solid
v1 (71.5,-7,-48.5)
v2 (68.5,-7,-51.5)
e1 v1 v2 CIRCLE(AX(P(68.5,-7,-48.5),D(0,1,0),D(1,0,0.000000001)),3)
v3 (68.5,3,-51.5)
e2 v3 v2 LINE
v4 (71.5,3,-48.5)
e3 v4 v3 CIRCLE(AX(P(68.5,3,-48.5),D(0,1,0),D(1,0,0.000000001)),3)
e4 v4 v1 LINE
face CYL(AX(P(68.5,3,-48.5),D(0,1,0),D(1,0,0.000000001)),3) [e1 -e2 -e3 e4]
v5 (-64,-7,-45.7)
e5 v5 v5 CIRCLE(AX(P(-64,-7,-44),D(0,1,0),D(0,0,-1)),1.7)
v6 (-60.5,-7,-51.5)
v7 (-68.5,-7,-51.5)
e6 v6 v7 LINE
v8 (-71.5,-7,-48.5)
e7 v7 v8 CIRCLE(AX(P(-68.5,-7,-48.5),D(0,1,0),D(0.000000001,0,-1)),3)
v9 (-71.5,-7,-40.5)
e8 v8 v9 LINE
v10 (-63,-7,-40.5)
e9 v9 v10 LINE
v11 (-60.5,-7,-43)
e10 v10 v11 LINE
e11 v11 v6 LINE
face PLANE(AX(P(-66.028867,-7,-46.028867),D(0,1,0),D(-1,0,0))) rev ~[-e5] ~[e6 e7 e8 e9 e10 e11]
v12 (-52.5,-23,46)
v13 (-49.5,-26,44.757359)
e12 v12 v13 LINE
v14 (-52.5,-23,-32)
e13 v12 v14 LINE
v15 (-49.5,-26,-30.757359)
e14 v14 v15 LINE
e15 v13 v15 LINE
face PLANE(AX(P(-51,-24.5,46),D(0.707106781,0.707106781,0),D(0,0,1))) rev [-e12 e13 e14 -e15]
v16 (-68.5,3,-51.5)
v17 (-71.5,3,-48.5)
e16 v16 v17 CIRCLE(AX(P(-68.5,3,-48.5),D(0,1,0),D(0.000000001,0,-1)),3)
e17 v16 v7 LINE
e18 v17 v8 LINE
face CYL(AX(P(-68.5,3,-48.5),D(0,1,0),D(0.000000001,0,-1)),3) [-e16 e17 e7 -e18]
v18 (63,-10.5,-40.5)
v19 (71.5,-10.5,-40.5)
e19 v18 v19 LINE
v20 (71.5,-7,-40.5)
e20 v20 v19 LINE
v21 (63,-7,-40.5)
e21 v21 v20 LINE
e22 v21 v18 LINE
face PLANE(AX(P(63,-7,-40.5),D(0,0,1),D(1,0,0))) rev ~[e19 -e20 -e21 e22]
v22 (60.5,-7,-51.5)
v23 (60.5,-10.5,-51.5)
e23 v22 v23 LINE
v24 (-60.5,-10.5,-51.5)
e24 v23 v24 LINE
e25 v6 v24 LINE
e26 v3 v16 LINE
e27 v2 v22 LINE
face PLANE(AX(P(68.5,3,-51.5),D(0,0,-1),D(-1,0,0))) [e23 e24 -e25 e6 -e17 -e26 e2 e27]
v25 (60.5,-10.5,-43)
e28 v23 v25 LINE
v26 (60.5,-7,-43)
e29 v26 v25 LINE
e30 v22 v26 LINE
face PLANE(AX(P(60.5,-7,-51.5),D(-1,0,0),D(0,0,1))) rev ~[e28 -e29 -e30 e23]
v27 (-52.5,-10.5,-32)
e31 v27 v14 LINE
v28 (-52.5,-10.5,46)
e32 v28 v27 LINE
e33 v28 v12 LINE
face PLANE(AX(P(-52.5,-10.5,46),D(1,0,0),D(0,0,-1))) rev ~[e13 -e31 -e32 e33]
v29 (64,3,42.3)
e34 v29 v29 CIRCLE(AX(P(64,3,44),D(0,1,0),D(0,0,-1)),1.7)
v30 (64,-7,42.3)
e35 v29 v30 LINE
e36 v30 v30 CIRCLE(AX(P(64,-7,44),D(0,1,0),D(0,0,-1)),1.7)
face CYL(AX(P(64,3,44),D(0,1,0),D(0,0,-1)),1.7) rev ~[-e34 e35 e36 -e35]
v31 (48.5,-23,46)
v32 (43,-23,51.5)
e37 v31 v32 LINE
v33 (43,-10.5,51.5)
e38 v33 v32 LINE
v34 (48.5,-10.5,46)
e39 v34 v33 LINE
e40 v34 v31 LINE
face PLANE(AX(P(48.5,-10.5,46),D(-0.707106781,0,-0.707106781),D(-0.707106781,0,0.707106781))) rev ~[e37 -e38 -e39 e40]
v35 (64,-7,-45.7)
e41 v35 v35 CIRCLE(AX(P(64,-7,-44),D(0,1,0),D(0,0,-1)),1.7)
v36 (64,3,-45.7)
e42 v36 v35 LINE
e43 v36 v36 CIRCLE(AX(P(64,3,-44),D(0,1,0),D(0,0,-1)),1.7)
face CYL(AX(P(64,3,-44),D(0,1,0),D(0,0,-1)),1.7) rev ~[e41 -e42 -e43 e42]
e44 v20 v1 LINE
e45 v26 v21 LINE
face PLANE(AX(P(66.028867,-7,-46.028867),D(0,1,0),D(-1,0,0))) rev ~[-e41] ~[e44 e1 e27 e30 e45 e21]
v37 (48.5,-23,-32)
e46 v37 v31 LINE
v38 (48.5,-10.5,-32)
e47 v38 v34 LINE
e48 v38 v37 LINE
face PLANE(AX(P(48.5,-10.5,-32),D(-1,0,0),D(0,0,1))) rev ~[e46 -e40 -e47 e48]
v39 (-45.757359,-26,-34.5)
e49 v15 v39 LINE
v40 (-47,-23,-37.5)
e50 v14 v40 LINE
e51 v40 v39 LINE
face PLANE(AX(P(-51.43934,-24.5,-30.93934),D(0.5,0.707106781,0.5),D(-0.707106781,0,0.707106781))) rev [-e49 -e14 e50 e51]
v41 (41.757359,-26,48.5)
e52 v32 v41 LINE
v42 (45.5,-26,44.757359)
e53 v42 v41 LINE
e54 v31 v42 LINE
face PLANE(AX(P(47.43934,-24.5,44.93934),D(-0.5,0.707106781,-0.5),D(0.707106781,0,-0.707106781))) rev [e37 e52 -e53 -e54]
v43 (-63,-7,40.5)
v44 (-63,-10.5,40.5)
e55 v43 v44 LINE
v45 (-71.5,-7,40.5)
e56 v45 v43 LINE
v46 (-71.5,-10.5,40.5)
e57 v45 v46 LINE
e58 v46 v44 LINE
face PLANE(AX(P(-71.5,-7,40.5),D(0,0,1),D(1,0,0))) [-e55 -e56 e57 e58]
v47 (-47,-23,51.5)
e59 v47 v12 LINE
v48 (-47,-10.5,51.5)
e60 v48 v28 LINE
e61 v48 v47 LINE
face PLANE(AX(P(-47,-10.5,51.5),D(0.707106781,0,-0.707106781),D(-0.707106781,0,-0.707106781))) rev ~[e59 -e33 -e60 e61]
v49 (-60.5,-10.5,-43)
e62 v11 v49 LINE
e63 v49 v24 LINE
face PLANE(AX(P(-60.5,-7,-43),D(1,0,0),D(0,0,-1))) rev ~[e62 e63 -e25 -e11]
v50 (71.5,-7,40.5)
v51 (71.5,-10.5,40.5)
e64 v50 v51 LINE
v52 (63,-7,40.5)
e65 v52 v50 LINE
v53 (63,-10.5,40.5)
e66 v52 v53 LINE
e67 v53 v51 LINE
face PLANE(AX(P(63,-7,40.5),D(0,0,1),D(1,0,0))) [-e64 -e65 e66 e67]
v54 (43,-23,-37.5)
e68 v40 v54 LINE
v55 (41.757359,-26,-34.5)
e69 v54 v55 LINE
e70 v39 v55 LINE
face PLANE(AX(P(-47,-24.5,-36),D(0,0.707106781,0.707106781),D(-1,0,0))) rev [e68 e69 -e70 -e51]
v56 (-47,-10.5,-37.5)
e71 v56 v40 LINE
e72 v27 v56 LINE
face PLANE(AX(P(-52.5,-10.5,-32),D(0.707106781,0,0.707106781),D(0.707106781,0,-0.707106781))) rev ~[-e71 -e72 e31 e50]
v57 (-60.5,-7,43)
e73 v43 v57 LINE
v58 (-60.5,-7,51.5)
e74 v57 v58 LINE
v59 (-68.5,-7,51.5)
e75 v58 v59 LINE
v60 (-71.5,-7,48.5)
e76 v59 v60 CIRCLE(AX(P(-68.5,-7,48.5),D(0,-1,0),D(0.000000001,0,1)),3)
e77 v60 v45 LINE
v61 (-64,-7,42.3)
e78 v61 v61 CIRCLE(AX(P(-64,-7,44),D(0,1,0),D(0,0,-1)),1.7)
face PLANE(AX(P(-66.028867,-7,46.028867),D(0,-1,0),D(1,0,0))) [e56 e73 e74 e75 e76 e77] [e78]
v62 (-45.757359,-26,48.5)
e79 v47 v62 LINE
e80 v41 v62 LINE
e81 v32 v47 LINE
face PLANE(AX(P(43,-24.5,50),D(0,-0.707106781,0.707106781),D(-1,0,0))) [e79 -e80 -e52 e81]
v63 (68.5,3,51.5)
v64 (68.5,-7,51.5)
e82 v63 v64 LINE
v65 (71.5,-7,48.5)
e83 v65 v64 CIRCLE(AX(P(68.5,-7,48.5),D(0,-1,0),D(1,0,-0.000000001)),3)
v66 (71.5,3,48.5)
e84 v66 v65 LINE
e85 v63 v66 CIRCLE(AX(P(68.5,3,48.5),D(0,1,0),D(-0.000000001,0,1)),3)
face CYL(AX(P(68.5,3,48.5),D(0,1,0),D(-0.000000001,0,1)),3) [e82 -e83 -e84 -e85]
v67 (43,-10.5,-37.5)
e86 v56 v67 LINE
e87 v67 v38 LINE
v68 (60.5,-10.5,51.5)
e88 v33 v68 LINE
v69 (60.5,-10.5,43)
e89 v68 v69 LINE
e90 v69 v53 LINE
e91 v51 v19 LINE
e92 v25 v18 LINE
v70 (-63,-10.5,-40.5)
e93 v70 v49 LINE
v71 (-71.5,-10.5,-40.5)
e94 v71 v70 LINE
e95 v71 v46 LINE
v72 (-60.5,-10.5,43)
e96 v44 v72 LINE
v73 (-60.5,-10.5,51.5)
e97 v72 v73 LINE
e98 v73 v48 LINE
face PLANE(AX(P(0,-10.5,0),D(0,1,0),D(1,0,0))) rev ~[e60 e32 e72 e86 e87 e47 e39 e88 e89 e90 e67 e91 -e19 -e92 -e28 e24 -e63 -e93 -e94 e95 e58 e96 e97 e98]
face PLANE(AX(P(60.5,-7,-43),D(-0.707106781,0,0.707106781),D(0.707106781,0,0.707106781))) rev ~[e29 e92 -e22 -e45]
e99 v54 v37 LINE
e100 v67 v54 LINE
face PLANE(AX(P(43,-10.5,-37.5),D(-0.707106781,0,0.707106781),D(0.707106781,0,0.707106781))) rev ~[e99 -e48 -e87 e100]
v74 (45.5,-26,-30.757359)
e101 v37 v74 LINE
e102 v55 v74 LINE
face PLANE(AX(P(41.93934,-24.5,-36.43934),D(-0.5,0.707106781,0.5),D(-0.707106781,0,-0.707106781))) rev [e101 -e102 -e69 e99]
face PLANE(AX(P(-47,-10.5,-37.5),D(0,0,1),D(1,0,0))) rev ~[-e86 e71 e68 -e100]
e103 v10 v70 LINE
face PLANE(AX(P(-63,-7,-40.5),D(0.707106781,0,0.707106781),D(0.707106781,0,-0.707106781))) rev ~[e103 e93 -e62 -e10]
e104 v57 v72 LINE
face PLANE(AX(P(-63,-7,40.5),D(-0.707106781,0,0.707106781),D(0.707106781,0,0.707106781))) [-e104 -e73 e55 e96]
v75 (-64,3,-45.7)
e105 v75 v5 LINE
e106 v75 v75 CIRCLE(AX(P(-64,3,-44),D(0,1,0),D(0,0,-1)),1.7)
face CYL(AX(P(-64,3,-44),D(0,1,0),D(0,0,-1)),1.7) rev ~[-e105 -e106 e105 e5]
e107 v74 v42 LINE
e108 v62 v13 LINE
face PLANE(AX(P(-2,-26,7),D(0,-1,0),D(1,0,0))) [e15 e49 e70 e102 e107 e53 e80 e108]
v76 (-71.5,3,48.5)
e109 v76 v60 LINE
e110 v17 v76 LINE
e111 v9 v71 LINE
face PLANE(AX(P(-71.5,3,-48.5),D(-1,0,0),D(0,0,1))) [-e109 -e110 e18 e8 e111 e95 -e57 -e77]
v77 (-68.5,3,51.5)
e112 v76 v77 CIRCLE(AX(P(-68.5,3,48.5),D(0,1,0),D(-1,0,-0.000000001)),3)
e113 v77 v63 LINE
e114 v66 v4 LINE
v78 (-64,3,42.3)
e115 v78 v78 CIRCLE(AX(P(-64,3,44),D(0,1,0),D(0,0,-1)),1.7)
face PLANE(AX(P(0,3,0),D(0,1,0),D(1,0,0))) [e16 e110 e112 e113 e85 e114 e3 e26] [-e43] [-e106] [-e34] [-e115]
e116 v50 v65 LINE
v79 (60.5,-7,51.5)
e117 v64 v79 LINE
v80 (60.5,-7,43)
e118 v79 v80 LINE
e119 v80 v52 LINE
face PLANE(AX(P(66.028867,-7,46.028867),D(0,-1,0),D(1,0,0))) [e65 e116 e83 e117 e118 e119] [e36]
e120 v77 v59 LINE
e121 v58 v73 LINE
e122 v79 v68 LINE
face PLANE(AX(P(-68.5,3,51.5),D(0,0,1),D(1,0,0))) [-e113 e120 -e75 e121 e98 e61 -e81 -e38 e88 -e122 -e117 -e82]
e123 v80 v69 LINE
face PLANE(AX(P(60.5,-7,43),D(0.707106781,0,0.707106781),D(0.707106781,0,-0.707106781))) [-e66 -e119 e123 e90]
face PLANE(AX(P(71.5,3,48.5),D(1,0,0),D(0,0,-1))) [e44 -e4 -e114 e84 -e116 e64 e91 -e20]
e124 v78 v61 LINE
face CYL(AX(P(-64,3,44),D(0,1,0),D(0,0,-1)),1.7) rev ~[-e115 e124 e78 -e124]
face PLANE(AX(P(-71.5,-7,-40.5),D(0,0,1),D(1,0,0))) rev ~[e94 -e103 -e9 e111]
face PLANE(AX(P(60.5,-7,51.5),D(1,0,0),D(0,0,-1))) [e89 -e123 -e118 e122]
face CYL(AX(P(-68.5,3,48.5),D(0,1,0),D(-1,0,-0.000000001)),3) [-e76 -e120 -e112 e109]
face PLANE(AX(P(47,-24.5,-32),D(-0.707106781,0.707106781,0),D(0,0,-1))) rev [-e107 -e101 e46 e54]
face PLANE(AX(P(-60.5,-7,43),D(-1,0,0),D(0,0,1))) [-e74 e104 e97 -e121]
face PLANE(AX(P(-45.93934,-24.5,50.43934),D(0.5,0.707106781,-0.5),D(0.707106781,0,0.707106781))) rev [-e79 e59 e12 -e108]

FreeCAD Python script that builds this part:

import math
import FreeCAD as App
import Part
import Sketcher
from FreeCAD import Vector
Q = App.Units.Quantity


def edges_at(feature, points):
    """Names of the edges that pass closest to the given points."""
    edges = feature.Shape.Edges
    near = lambda p: min(range(len(edges)), key=lambda i: edges[i].distToShape(Part.Vertex(*p))[0])
    return sorted({f"Edge{near(p) + 1}" for p in points})


def add_polygon(sketch, points):
    """Adds a closed chain of lines whose ends are joined by coincident constraints."""
    first, n = sketch.GeometryCount, len(points)
    for a, b in zip(points, points[1:] + points[:1]):
        sketch.addGeometry(Part.LineSegment(App.Vector(*a, 0), App.Vector(*b, 0)), False)
    for i in range(n):
        sketch.addConstraint(Sketcher.Constraint("Coincident", first + i, 2, first + (i + 1) % n, 1))

doc = App.newDocument("Part")
body = doc.addObject("PartDesign::Body", "Body")

sketch1 = body.newObject("Sketcher::SketchObject", "Sketch")
sketch1.AttachmentSupport = (doc.getObject("XZ_Plane"), [""])
sketch1.MapMode = "FlatFace"
sketch1.AttachmentOffset = App.Placement(Vector(0, 0, -3), App.Rotation())
sketch1.addGeometry(Part.LineSegment(Vector(71.5, 48.5, 0), Vector(71.5, -48.5, 0)), False)
sketch1.addGeometry(Part.ArcOfCircle(Part.Circle(Vector(68.5, -48.5, 0), Vector(0, 0, 1), 3), math.radians(-90), math.radians(0)), False)
sketch1.addGeometry(Part.LineSegment(Vector(68.5, -51.5, 0), Vector(-68.5, -51.5, 0)), False)
sketch1.addGeometry(Part.ArcOfCircle(Part.Circle(Vector(-68.5, -48.5, 0), Vector(0, 0, 1), 3), math.radians(180), math.radians(270)), False)
sketch1.addGeometry(Part.LineSegment(Vector(-71.5, -48.5, 0), Vector(-71.5, 48.5, 0)), False)
sketch1.addGeometry(Part.ArcOfCircle(Part.Circle(Vector(-68.5, 48.5, 0), Vector(0, 0, 1), 3), math.radians(90), math.radians(180)), False)
sketch1.addGeometry(Part.LineSegment(Vector(-68.5, 51.5, 0), Vector(68.5, 51.5, 0)), False)
sketch1.addGeometry(Part.ArcOfCircle(Part.Circle(Vector(68.5, 48.5, 0), Vector(0, 0, 1), 3), math.radians(0), math.radians(90)), False)
sketch1.addGeometry(Part.Circle(Vector(-64, 44, 0), Vector(0, 0, 1), 1.7), False)
sketch1.addGeometry(Part.Circle(Vector(64, 44, 0), Vector(0, 0, 1), 1.7), False)
sketch1.addGeometry(Part.Circle(Vector(-64, -44, 0), Vector(0, 0, 1), 1.7), False)
sketch1.addGeometry(Part.Circle(Vector(64, -44, 0), Vector(0, 0, 1), 1.7), False)
sketch1.addConstraint(Sketcher.Constraint("Tangent", 0, 2, 1, 2))
sketch1.addConstraint(Sketcher.Constraint("Tangent", 1, 1, 2, 1))
sketch1.addConstraint(Sketcher.Constraint("Tangent", 2, 2, 3, 2))
sketch1.addConstraint(Sketcher.Constraint("Tangent", 3, 1, 4, 1))
sketch1.addConstraint(Sketcher.Constraint("Tangent", 4, 2, 5, 2))
sketch1.addConstraint(Sketcher.Constraint("Tangent", 5, 1, 6, 1))
sketch1.addConstraint(Sketcher.Constraint("Tangent", 6, 2, 7, 2))
sketch1.addConstraint(Sketcher.Constraint("Tangent", 7, 1, 0, 1))
sketch1.addConstraint(Sketcher.Constraint("Vertical", 0))
sketch1.addConstraint(Sketcher.Constraint("Horizontal", 2))
sketch1.addConstraint(Sketcher.Constraint("Vertical", 4))
sketch1.addConstraint(Sketcher.Constraint("Horizontal", 6))
sketch1.addConstraint(Sketcher.Constraint("Equal", 1, 3))
sketch1.addConstraint(Sketcher.Constraint("Equal", 3, 5))
sketch1.addConstraint(Sketcher.Constraint("Equal", 5, 7))
sketch1.addConstraint(Sketcher.Constraint("Equal", 8, 9))
sketch1.addConstraint(Sketcher.Constraint("Equal", 9, 10))
sketch1.addConstraint(Sketcher.Constraint("Equal", 10, 11))
sketch1.addConstraint(Sketcher.Constraint("Symmetric", 1, 3, 5, 3, -1, 1))
sketch1.addConstraint(Sketcher.Constraint("Symmetric", 9, 3, 10, 3, -1, 1))
sketch1.addConstraint(Sketcher.Constraint("Symmetric", 8, 3, 11, 3, -1, 1))
sketch1.addConstraint(Sketcher.Constraint("Symmetric", 8, 3, 9, 3, -2))
sketch1.addConstraint(Sketcher.Constraint("Radius", 1, Q("3 mm")))
sketch1.addConstraint(Sketcher.Constraint("Diameter", 8, Q("3.4 mm")))
sketch1.addConstraint(Sketcher.Constraint("DistanceX", 2, 2, 2, 1, Q("137 mm")))
sketch1.addConstraint(Sketcher.Constraint("DistanceY", 0, 2, 0, 1, Q("97 mm")))
sketch1.addConstraint(Sketcher.Constraint("DistanceX", 8, 3, -1, 1, Q("64 mm")))
sketch1.addConstraint(Sketcher.Constraint("DistanceY", -1, 1, 8, 3, Q("44 mm")))
pad1 = body.newObject("PartDesign::Pad", "Pad")
pad1.Profile = sketch1
pad1.Length = 13.5

sketch2 = body.newObject("Sketcher::SketchObject", "Sketch001")
sketch2.AttachmentSupport = (doc.getObject("XZ_Plane"), [""])
sketch2.MapMode = "FlatFace"
sketch2.AttachmentOffset = App.Placement(Vector(0, 0, 7), App.Rotation())
sketch2.addGeometry(Part.LineSegment(Vector(-63, -40.5, 0), Vector(-71.5, -40.5, 0)), False)
sketch2.addGeometry(Part.LineSegment(Vector(-71.5, -40.5, 0), Vector(-71.5, -48.5, 0)), False)
sketch2.addGeometry(Part.ArcOfCircle(Part.Circle(Vector(-68.5, -48.5, 0), Vector(0, 0, 1), 3), math.radians(180), math.radians(270)), False)
sketch2.addGeometry(Part.LineSegment(Vector(-68.5, -51.5, 0), Vector(-60.5, -51.5, 0)), False)
sketch2.addGeometry(Part.LineSegment(Vector(-60.5, -51.5, 0), Vector(-60.5, -43, 0)), False)
sketch2.addGeometry(Part.LineSegment(Vector(-60.5, -43, 0), Vector(-63, -40.5, 0)), False)
sketch2.addGeometry(Part.LineSegment(Vector(-71.5, 40.5, 0), Vector(-63, 40.5, 0)), False)
sketch2.addGeometry(Part.LineSegment(Vector(-63, 40.5, 0), Vector(-60.5, 43, 0)), False)
sketch2.addGeometry(Part.LineSegment(Vector(-60.5, 43, 0), Vector(-60.5, 51.5, 0)), False)
sketch2.addGeometry(Part.LineSegment(Vector(-60.5, 51.5, 0), Vector(-68.5, 51.5, 0)), False)
sketch2.addGeometry(Part.ArcOfCircle(Part.Circle(Vector(-68.5, 48.5, 0), Vector(0, 0, 1), 3), math.radians(90), math.radians(180)), False)
sketch2.addGeometry(Part.LineSegment(Vector(-71.5, 48.5, 0), Vector(-71.5, 40.5, 0)), False)
sketch2.addGeometry(Part.LineSegment(Vector(60.5, 51.5, 0), Vector(60.5, 43, 0)), False)
sketch2.addGeometry(Part.LineSegment(Vector(60.5, 43, 0), Vector(63, 40.5, 0)), False)
sketch2.addGeometry(Part.LineSegment(Vector(63, 40.5, 0), Vector(71.5, 40.5, 0)), False)
sketch2.addGeometry(Part.LineSegment(Vector(71.5, 40.5, 0), Vector(71.5, 48.5, 0)), False)
sketch2.addGeometry(Part.ArcOfCircle(Part.Circle(Vector(68.5, 48.5, 0), Vector(0, 0, 1), 3), math.radians(0), math.radians(90)), False)
sketch2.addGeometry(Part.LineSegment(Vector(68.5, 51.5, 0), Vector(60.5, 51.5, 0)), False)
sketch2.addGeometry(Part.LineSegment(Vector(60.5, -43, 0), Vector(60.5, -51.5, 0)), False)
sketch2.addGeometry(Part.LineSegment(Vector(60.5, -51.5, 0), Vector(68.5, -51.5, 0)), False)
sketch2.addGeometry(Part.ArcOfCircle(Part.Circle(Vector(68.5, -48.5, 0), Vector(0, 0, 1), 3), math.radians(-90), math.radians(0)), False)
sketch2.addGeometry(Part.LineSegment(Vector(71.5, -48.5, 0), Vector(71.5, -40.5, 0)), False)
sketch2.addGeometry(Part.LineSegment(Vector(71.5, -40.5, 0), Vector(63, -40.5, 0)), False)
sketch2.addGeometry(Part.LineSegment(Vector(63, -40.5, 0), Vector(60.5, -43, 0)), False)
sketch2.addConstraint(Sketcher.Constraint("Coincident", 0, 2, 1, 1))
sketch2.addConstraint(Sketcher.Constraint("Tangent", 1, 2, 2, 1))
sketch2.addConstraint(Sketcher.Constraint("Tangent", 2, 2, 3, 1))
sketch2.addConstraint(Sketcher.Constraint("Coincident", 3, 2, 4, 1))
sketch2.addConstraint(Sketcher.Constraint("Coincident", 4, 2, 5, 1))
sketch2.addConstraint(Sketcher.Constraint("Coincident", 5, 2, 0, 1))
sketch2.addConstraint(Sketcher.Constraint("Coincident", 6, 2, 7, 1))
sketch2.addConstraint(Sketcher.Constraint("Coincident", 7, 2, 8, 1))
sketch2.addConstraint(Sketcher.Constraint("Coincident", 8, 2, 9, 1))
sketch2.addConstraint(Sketcher.Constraint("Tangent", 9, 2, 10, 1))
sketch2.addConstraint(Sketcher.Constraint("Tangent", 10, 2, 11, 1))
sketch2.addConstraint(Sketcher.Constraint("Coincident", 11, 2, 6, 1))
sketch2.addConstraint(Sketcher.Constraint("Coincident", 12, 2, 13, 1))
sketch2.addConstraint(Sketcher.Constraint("Coincident", 13, 2, 14, 1))
sketch2.addConstraint(Sketcher.Constraint("Coincident", 14, 2, 15, 1))
sketch2.addConstraint(Sketcher.Constraint("Tangent", 15, 2, 16, 1))
sketch2.addConstraint(Sketcher.Constraint("Tangent", 16, 2, 17, 1))
sketch2.addConstraint(Sketcher.Constraint("Coincident", 17, 2, 12, 1))
sketch2.addConstraint(Sketcher.Constraint("Coincident", 18, 2, 19, 1))
sketch2.addConstraint(Sketcher.Constraint("Tangent", 19, 2, 20, 1))
sketch2.addConstraint(Sketcher.Constraint("Tangent", 20, 2, 21, 1))
sketch2.addConstraint(Sketcher.Constraint("Coincident", 21, 2, 22, 1))
sketch2.addConstraint(Sketcher.Constraint("Coincident", 22, 2, 23, 1))
sketch2.addConstraint(Sketcher.Constraint("Coincident", 23, 2, 18, 1))
sketch2.addConstraint(Sketcher.Constraint("Horizontal", 0))
sketch2.addConstraint(Sketcher.Constraint("Vertical", 1))
sketch2.addConstraint(Sketcher.Constraint("Horizontal", 3))
sketch2.addConstraint(Sketcher.Constraint("Vertical", 4))
sketch2.addConstraint(Sketcher.Constraint("Horizontal", 6))
sketch2.addConstraint(Sketcher.Constraint("Vertical", 8))
sketch2.addConstraint(Sketcher.Constraint("Horizontal", 9))
sketch2.addConstraint(Sketcher.Constraint("Vertical", 11))
sketch2.addConstraint(Sketcher.Constraint("Vertical", 12))
sketch2.addConstraint(Sketcher.Constraint("Horizontal", 14))
sketch2.addConstraint(Sketcher.Constraint("Vertical", 15))
sketch2.addConstraint(Sketcher.Constraint("Horizontal", 17))
sketch2.addConstraint(Sketcher.Constraint("Vertical", 18))
sketch2.addConstraint(Sketcher.Constraint("Horizontal", 19))
sketch2.addConstraint(Sketcher.Constraint("Vertical", 21))
sketch2.addConstraint(Sketcher.Constraint("Horizontal", 22))
sketch2.addConstraint(Sketcher.Constraint("Equal", 2, 10))
sketch2.addConstraint(Sketcher.Constraint("Equal", 10, 16))
sketch2.addConstraint(Sketcher.Constraint("Equal", 16, 20))
sketch2.addConstraint(Sketcher.Constraint("Symmetric", 2, 3, 16, 3, -1, 1))
sketch2.addConstraint(Sketcher.Constraint("Symmetric", 10, 3, 20, 3, -1, 1))
sketch2.addConstraint(Sketcher.Constraint("Symmetric", 4, 2, 12, 2, -1, 1))
sketch2.addConstraint(Sketcher.Constraint("Symmetric", 5, 2, 13, 2, -1, 1))
sketch2.addConstraint(Sketcher.Constraint("Symmetric", 6, 2, 22, 2, -1, 1))
sketch2.addConstraint(Sketcher.Constraint("Symmetric", 7, 2, 23, 2, -1, 1))
sketch2.addConstraint(Sketcher.Constraint("Symmetric", 10, 3, 16, 3, -2))
sketch2.addConstraint(Sketcher.Constraint("Symmetric", 7, 2, 12, 2, -2))
sketch2.addConstraint(Sketcher.Constraint("Symmetric", 6, 2, 13, 2, -2))
sketch2.addConstraint(Sketcher.Constraint("Perpendicular", 5, 7))
sketch2.addConstraint(Sketcher.Constraint("Equal", 19, 1))
sketch2.addConstraint(Sketcher.Constraint("Radius", 2, Q("3 mm")))
sketch2.addConstraint(Sketcher.Constraint("DistanceX", 3, 1, 3, 2, Q("8 mm")))
sketch2.addConstraint(Sketcher.Constraint("DistanceX", 0, 2, 0, 1, Q("8.5 mm")))
sketch2.addConstraint(Sketcher.Constraint("DistanceY", 4, 2, -1, 1, Q("43 mm")))
sketch2.addConstraint(Sketcher.Constraint("DistanceX", 5, 2, -1, 1, Q("63 mm")))
pocket1 = body.newObject("PartDesign::Pocket", "Pocket")
pocket1.Profile = sketch2
pocket1.Length = 3.5
pocket1.Reversed = True

sketch3 = body.newObject("Sketcher::SketchObject", "Sketch002")
sketch3.AttachmentSupport = (doc.getObject("XZ_Plane"), [""])
sketch3.MapMode = "FlatFace"
sketch3.AttachmentOffset = App.Placement(Vector(0, 0, 10.5), App.Rotation())
add_polygon(sketch3, [(-52.5, 46), (-52.5, -32), (-47, -37.5), (43, -37.5), (48.5, -32), (48.5, 46), (43, 51.5), (-47, 51.5)])
sketch3.addConstraint(Sketcher.Constraint("Vertical", 0))
sketch3.addConstraint(Sketcher.Constraint("Horizontal", 2))
sketch3.addConstraint(Sketcher.Constraint("Vertical", 4))
sketch3.addConstraint(Sketcher.Constraint("Horizontal", 6))
sketch3.addConstraint(Sketcher.Constraint("Perpendicular", 1, 3))
sketch3.addConstraint(Sketcher.Constraint("Perpendicular", 3, 5))
sketch3.addConstraint(Sketcher.Constraint("Perpendicular", 5, 7))
sketch3.addConstraint(Sketcher.Constraint("Horizontal", 0, 2, 3, 2))
sketch3.addConstraint(Sketcher.Constraint("Horizontal", 4, 2, 7, 2))
sketch3.addConstraint(Sketcher.Constraint("Vertical", 2, 2, 5, 2))
sketch3.addConstraint(Sketcher.Constraint("Vertical", 1, 2, 6, 2))
sketch3.addConstraint(Sketcher.Constraint("DistanceX", 2, 1, 2, 2, Q("90 mm")))
sketch3.addConstraint(Sketcher.Constraint("DistanceY", 0, 2, 0, 1, Q("78 mm")))
sketch3.addConstraint(Sketcher.Constraint("DistanceY", 0, 2, -1, 1, Q("32 mm")))
sketch3.addConstraint(Sketcher.Constraint("DistanceX", 1, 2, -1, 1, Q("47 mm")))
sketch3.addConstraint(Sketcher.Constraint("DistanceX", 0, 2, 3, 2, Q("101 mm")))
pad2 = body.newObject("PartDesign::Pad", "Pad001")
pad2.Profile = sketch3
pad2.Length = 15.5
doc.recompute()

chamfer = body.newObject("PartDesign::Chamfer", "Chamfer")
chamfer.Base = (pad2, edges_at(pad2, [
    (-2, -26, -37.5),
    (-49.75, -26, -34.75),
    (48.5, -26, 7),
    (45.75, -26, -34.75),
    (45.75, -26, 48.75),
    (-2, -26, 51.5),
    (-49.75, -26, 48.75),
    (-52.5, -26, 7),
]))
chamfer.Size = 3

doc.recompute()
